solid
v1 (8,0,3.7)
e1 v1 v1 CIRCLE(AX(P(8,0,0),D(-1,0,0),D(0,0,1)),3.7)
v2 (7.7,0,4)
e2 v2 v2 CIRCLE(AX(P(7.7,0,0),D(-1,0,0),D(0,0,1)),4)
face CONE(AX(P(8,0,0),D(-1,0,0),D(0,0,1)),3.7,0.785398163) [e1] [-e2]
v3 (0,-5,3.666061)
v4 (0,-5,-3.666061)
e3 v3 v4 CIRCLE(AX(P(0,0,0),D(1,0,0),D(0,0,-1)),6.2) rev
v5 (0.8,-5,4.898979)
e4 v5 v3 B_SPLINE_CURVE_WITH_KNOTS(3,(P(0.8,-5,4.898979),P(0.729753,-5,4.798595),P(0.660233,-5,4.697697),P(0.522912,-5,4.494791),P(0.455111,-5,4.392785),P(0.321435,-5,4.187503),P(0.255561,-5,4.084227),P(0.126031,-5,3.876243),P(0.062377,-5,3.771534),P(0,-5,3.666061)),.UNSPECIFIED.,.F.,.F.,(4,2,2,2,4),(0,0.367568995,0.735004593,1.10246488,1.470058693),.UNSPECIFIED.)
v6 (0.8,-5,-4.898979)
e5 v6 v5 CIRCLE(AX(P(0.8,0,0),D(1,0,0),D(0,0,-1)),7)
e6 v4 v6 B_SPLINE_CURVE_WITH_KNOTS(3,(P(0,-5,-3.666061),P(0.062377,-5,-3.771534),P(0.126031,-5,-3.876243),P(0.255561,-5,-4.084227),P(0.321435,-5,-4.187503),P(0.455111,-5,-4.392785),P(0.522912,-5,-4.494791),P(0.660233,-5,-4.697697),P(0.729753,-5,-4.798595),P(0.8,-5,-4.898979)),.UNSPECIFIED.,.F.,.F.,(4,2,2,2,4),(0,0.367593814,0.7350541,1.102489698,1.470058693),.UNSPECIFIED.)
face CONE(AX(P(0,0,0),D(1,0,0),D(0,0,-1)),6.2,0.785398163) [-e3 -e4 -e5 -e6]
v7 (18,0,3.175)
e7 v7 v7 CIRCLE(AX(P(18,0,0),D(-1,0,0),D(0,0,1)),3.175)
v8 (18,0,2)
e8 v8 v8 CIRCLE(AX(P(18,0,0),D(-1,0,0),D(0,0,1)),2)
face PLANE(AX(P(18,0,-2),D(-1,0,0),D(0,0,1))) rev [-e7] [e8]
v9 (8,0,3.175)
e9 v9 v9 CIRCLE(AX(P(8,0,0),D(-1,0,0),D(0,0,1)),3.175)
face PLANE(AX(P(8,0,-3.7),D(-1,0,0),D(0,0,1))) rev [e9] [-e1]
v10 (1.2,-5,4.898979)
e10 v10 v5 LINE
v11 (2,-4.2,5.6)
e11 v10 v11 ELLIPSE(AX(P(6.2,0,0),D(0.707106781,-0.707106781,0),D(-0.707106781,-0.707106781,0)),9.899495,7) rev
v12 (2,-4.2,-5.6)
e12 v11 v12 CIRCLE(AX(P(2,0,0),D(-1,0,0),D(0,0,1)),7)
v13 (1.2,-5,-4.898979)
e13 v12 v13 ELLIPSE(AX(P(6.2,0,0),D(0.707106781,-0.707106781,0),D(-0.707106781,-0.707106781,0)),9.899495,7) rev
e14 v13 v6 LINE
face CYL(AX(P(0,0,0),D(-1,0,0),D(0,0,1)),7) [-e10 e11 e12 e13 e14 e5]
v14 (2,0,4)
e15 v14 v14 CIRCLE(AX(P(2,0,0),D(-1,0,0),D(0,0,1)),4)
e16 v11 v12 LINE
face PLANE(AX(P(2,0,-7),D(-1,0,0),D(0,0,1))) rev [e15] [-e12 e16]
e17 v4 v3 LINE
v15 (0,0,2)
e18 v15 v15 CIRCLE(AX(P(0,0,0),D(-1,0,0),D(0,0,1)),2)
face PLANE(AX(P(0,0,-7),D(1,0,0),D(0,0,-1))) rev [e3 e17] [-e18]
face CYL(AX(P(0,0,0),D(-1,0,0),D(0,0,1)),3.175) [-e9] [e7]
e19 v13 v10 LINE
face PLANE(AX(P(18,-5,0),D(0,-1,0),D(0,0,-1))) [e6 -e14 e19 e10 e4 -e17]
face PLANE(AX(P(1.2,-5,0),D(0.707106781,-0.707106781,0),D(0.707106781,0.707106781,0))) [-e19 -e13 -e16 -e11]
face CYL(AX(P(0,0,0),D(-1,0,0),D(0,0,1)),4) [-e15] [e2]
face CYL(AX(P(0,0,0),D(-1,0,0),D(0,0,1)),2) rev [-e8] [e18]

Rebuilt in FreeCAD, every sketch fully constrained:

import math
import FreeCAD as App
import Part
import Sketcher
Q = App.Units.Quantity


def edges_at(feature, points):
    """Names of the edges that pass closest to the given points."""
    edges = feature.Shape.Edges
    near = lambda p: min(range(len(edges)), key=lambda i: edges[i].distToShape(Part.Vertex(*p))[0])
    return sorted({f"Edge{near(p) + 1}" for p in points})


def add_polygon(sketch, points):
    """Adds a closed chain of lines whose ends are joined by coincident constraints."""
    first, n = sketch.GeometryCount, len(points)
    for a, b in zip(points, points[1:] + points[:1]):
        sketch.addGeometry(Part.LineSegment(App.Vector(*a, 0), App.Vector(*b, 0)), False)
    for i in range(n):
        sketch.addConstraint(Sketcher.Constraint("Coincident", first + i, 2, first + (i + 1) % n, 1))

doc = App.newDocument("Part")
body = doc.addObject("PartDesign::Body", "Body")

sketch1 = body.newObject("Sketcher::SketchObject", "Sketch")
sketch1.AttachmentSupport = (doc.getObject("XZ_Plane"), [""])
sketch1.MapMode = "FlatFace"
add_polygon(sketch1, [(0, -2), (18, -2), (18, -3.17), (8, -3.17), (8, -3.7), (7.7, -4), (2, -4), (2, -7), (0, -7)])
sketch1.addConstraint(Sketcher.Constraint("Horizontal", 0))
sketch1.addConstraint(Sketcher.Constraint("Vertical", 1))
sketch1.addConstraint(Sketcher.Constraint("Horizontal", 2))
sketch1.addConstraint(Sketcher.Constraint("Vertical", 3))
sketch1.addConstraint(Sketcher.Constraint("Horizontal", 5))
sketch1.addConstraint(Sketcher.Constraint("Vertical", 6))
sketch1.addConstraint(Sketcher.Constraint("Horizontal", 7))
sketch1.addConstraint(Sketcher.Constraint("Vertical", 8))
sketch1.addConstraint(Sketcher.Constraint("PointOnObject", 7, 2, -2))
sketch1.addConstraint(Sketcher.Constraint("DistanceX", 0, 1, 0, 2, Q("18 mm")))
sketch1.addConstraint(Sketcher.Constraint("DistanceX", 2, 2, 2, 1, Q("10 mm")))
sketch1.addConstraint(Sketcher.Constraint("DistanceX", 7, 2, 7, 1, Q("2 mm")))
sketch1.addConstraint(Sketcher.Constraint("DistanceY", 6, 2, 6, 1, Q("3 mm")))
sketch1.addConstraint(Sketcher.Constraint("DistanceY", 8, 1, 8, 2, Q("5 mm")))
sketch1.addConstraint(Sketcher.Constraint("Angle", 4, Q("-135 deg")))
sketch1.addConstraint(Sketcher.Constraint("DistanceX", 5, 2, 5, 1, Q("5.7 mm")))
sketch1.addConstraint(Sketcher.Constraint("DistanceY", 0, 2, -1, 1, Q("2 mm")))
sketch1.addConstraint(Sketcher.Constraint("DistanceY", 1, 2, 1, 1, Q("1.175 mm")))
revolution = body.newObject("PartDesign::Revolution", "Revolution")
revolution.Profile = sketch1
revolution.ReferenceAxis = (sketch1, ["H_Axis"])
revolution.Angle = 360

sketch2 = body.newObject("Sketcher::SketchObject", "Sketch001")
sketch2.AttachmentSupport = (doc.getObject("YZ_Plane"), [""])
sketch2.MapMode = "FlatFace"
sketch2.addGeometry(Part.LineSegment(App.Vector(-5, 5, 0), App.Vector(-5, -5, 0)), False)
sketch2.addGeometry(Part.ArcOfCircle(Part.Circle(App.Vector(0, 0, 0), App.Vector(0, 0, 1), 7), math.radians(136), math.radians(224)), False)
sketch2.addConstraint(Sketcher.Constraint("Coincident", 0, 1, 1, 1))
sketch2.addConstraint(Sketcher.Constraint("Coincident", 1, 2, 0, 2))
sketch2.addConstraint(Sketcher.Constraint("Vertical", 0))
sketch2.addConstraint(Sketcher.Constraint("Coincident", 1, 3, -1, 1))
sketch2.addConstraint(Sketcher.Constraint("Radius", 1, Q("7 mm")))
sketch2.addConstraint(Sketcher.Constraint("DistanceX", 0, 1, -1, 1, Q("5 mm")))
pocket1 = body.newObject("PartDesign::Pocket", "Pocket")
pocket1.Profile = sketch2
pocket1.Type = "ThroughAll"
pocket1.Reversed = True
doc.recompute()

chamfer = body.newObject("PartDesign::Chamfer", "Chamfer")
chamfer.Base = (pocket1, edges_at(pocket1, [(0, 7, 0), (2, -5, 0)]))
chamfer.Size = 0.8

doc.recompute()
